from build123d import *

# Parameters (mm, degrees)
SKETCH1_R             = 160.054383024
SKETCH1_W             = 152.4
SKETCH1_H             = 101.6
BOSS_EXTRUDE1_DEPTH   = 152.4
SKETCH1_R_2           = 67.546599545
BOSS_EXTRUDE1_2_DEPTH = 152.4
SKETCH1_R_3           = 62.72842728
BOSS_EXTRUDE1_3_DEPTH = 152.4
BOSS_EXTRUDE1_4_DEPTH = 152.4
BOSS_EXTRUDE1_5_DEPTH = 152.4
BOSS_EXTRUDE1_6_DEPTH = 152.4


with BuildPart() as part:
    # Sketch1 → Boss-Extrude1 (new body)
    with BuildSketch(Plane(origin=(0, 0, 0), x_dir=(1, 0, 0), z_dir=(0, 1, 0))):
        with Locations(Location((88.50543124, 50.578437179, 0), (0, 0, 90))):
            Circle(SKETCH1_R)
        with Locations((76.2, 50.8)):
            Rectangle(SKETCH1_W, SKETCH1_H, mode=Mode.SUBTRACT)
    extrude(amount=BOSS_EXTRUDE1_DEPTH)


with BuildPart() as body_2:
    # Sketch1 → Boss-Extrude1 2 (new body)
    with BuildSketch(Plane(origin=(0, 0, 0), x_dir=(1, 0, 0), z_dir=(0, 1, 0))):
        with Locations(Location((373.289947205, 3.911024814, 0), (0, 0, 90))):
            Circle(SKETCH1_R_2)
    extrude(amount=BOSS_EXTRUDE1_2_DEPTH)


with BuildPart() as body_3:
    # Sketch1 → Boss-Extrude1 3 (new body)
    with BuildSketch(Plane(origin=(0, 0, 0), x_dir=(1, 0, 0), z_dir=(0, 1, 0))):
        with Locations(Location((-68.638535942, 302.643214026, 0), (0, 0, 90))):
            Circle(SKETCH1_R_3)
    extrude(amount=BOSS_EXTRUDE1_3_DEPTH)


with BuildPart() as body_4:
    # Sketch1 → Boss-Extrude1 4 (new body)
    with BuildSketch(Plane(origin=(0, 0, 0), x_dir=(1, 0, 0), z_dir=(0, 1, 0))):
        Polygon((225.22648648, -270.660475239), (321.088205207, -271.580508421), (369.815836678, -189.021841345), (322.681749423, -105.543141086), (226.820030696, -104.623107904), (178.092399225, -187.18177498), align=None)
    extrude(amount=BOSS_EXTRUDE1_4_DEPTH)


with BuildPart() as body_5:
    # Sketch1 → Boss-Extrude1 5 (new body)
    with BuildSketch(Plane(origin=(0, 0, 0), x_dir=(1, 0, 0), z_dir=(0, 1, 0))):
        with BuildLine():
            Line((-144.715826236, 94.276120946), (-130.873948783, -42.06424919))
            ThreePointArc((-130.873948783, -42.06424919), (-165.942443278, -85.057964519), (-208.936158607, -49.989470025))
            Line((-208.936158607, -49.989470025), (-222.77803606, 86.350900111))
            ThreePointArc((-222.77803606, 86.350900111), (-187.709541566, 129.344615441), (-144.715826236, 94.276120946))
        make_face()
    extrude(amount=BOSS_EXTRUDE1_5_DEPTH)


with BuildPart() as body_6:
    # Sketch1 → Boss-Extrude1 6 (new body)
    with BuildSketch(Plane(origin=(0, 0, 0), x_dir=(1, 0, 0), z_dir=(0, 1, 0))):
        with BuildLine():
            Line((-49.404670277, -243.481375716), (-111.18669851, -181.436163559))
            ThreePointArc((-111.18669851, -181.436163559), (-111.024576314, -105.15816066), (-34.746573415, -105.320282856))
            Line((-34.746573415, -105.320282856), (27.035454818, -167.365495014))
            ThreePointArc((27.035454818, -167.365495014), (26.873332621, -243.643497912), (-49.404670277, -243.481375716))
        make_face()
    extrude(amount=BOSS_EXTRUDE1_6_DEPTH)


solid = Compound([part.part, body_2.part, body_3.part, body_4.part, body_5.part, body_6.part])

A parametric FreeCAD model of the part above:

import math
import FreeCAD as App
import Part
import Sketcher
from FreeCAD import Vector
Q = App.Units.Quantity

doc = App.newDocument("Part")
params = doc.addObject("Spreadsheet::Sheet", "Params")
for row, (alias, value) in enumerate([
    ("sketch1_width", "6 in"),
    ("sketch1_height", "4 in"),
    ("pad1_length", "6 in"),
    ("pad2_length", "6 in"),
    ("pad3_length", "6 in"),
    ("pad4_length", "6 in"),
    ("pad5_length", "6 in"),
    ("pad6_length", "6 in"),
], start=1):
    params.set(f"A{row}", alias)
    params.set(f"B{row}", "=" + value)
    params.setAlias(f"B{row}", alias)

body = doc.addObject("PartDesign::Body", "Body")

sketch1 = body.newObject("Sketcher::SketchObject", "Sketch")
sketch1.AttachmentSupport = (doc.getObject("XZ_Plane"), [""])
sketch1.MapMode = "FlatFace"
sketch1.addGeometry([
    Part.Circle(Vector(89, -51, 0), Vector(0, 0, 1), 160),
    Part.LineSegment(Vector(152, 0, 0), Vector(0, 0, 0)),
    Part.LineSegment(Vector(0, 0, 0), Vector(0, -102, 0)),
    Part.LineSegment(Vector(0, -102, 0), Vector(152, -102, 0)),
    Part.LineSegment(Vector(152, -102, 0), Vector(152, 0, 0)),
], False)
sketch1.addConstraint([
    Sketcher.Constraint("Coincident", 1, 2, 2, 1),
    Sketcher.Constraint("Coincident", 2, 2, 3, 1),
    Sketcher.Constraint("Coincident", 3, 2, 4, 1),
    Sketcher.Constraint("Coincident", 4, 2, 1, 1),
    Sketcher.Constraint("Horizontal", 1),
    Sketcher.Constraint("Vertical", 2),
    Sketcher.Constraint("Horizontal", 3),
    Sketcher.Constraint("Vertical", 4),
    Sketcher.Constraint("Coincident", 1, 2, -1, 1),
    Sketcher.Constraint("DistanceX", 1, 2, 1, 1, Q("6 in")),
    Sketcher.Constraint("DistanceY", 2, 2, 2, 1, Q("4 in")),
    Sketcher.Constraint("Diameter", 0, 320.108766),
    Sketcher.Constraint("DistanceX", -1, 1, 0, 3, 88.505431),
    Sketcher.Constraint("DistanceY", 0, 3, -1, 1, 50.578437),
])
sketch1.setExpression("Constraints[9]", "Params.sketch1_width")
sketch1.setExpression("Constraints[10]", "Params.sketch1_height")
pad1 = body.newObject("PartDesign::Pad", "Pad")
pad1.Profile = sketch1
pad1.setExpression("Length", "Params.pad1_length")
pad1.Reversed = True
body2 = doc.addObject("PartDesign::Body", "Body001")

sketch2 = body2.newObject("Sketcher::SketchObject", "Sketch001")
sketch2.AttachmentSupport = (doc.getObject("XZ_Plane001"), [""])
sketch2.MapMode = "FlatFace"
sketch2.addGeometry(Part.Circle(Vector(373, -4, 0), Vector(0, 0, 1), 68), False)
sketch2.addConstraint([
    Sketcher.Constraint("Diameter", 0, 135.093199),
    Sketcher.Constraint("DistanceX", -1, 1, 0, 3, 373.289947),
    Sketcher.Constraint("DistanceY", 0, 3, -1, 1, 3.911025),
])
pad2 = body2.newObject("PartDesign::Pad", "Pad001")
pad2.Profile = sketch2
pad2.setExpression("Length", "Params.pad2_length")
pad2.Reversed = True
body3 = doc.addObject("PartDesign::Body", "Body002")

sketch3 = body3.newObject("Sketcher::SketchObject", "Sketch002")
sketch3.AttachmentSupport = (doc.getObject("XZ_Plane002"), [""])
sketch3.MapMode = "FlatFace"
sketch3.addGeometry(Part.Circle(Vector(-69, -303, 0), Vector(0, 0, 1), 63), False)
sketch3.addConstraint([
    Sketcher.Constraint("Diameter", 0, 125.456855),
    Sketcher.Constraint("DistanceX", 0, 3, -1, 1, 68.638536),
    Sketcher.Constraint("DistanceY", 0, 3, -1, 1, 302.643214),
])
pad3 = body3.newObject("PartDesign::Pad", "Pad002")
pad3.Profile = sketch3
pad3.setExpression("Length", "Params.pad3_length")
pad3.Reversed = True
body4 = doc.addObject("PartDesign::Body", "Body003")

sketch4 = body4.newObject("Sketcher::SketchObject", "Sketch003")
sketch4.AttachmentSupport = (doc.getObject("XZ_Plane003"), [""])
sketch4.MapMode = "FlatFace"
sketch4.addGeometry([
    Part.LineSegment(Vector(225, 271, 0), Vector(321, 272, 0)),
    Part.LineSegment(Vector(321, 272, 0), Vector(370, 189, 0)),
    Part.LineSegment(Vector(370, 189, 0), Vector(323, 106, 0)),
    Part.LineSegment(Vector(323, 106, 0), Vector(227, 105, 0)),
    Part.LineSegment(Vector(227, 105, 0), Vector(178, 187, 0)),
    Part.LineSegment(Vector(178, 187, 0), Vector(225, 271, 0)),
], False)
sketch4.addConstraint([
    Sketcher.Constraint("Coincident", 0, 2, 1, 1),
    Sketcher.Constraint("Coincident", 1, 2, 2, 1),
    Sketcher.Constraint("Coincident", 2, 2, 3, 1),
    Sketcher.Constraint("Coincident", 3, 2, 4, 1),
    Sketcher.Constraint("Coincident", 4, 2, 5, 1),
    Sketcher.Constraint("Coincident", 5, 2, 0, 1),
    Sketcher.Constraint("Parallel", 0, 3),
    Sketcher.Constraint("Parallel", 1, 4),
    Sketcher.Constraint("Parallel", 2, 5),
    Sketcher.Constraint("Equal", 0, 1),
    Sketcher.Constraint("Equal", 1, 2),
    Sketcher.Constraint("Equal", 2, 3),
    Sketcher.Constraint("DistanceX", -1, 1, 4, 2, 178.092399),
    Sketcher.Constraint("DistanceY", 2, 2, 1, 2, 83.4787),
    Sketcher.Constraint("DistanceY", 3, 2, 0, 2, 166.957401),
    Sketcher.Constraint("DistanceY", -1, 1, 0, 2, 271.580508),
    Sketcher.Constraint("DistanceY", -1, 1, 1, 2, 189.021841),
    Sketcher.Constraint("DistanceX", -1, 1, 2, 2, 322.681749),
])
pad4 = body4.newObject("PartDesign::Pad", "Pad003")
pad4.Profile = sketch4
pad4.setExpression("Length", "Params.pad4_length")
pad4.Reversed = True
body5 = doc.addObject("PartDesign::Body", "Body004")

sketch5 = body5.newObject("Sketcher::SketchObject", "Sketch004")
sketch5.AttachmentSupport = (doc.getObject("XZ_Plane004"), [""])
sketch5.MapMode = "FlatFace"
sketch5.addGeometry([
    Part.LineSegment(Vector(-131, 42, 0), Vector(-145, -94, 0)),
    Part.ArcOfCircle(Part.Circle(Vector(-184, -90, 0), Vector(0, 0, 1), 39), math.radians(174), math.radians(354)),
    Part.LineSegment(Vector(-223, -86, 0), Vector(-209, 50, 0)),
    Part.ArcOfCircle(Part.Circle(Vector(-170, 46, 0), Vector(0, 0, 1), 39), math.radians(-6), math.radians(174)),
], False)
sketch5.addConstraint([
    Sketcher.Constraint("Tangent", 0, 2, 1, 2),
    Sketcher.Constraint("Tangent", 1, 1, 2, 1),
    Sketcher.Constraint("Tangent", 2, 2, 3, 2),
    Sketcher.Constraint("Tangent", 3, 1, 0, 1),
    Sketcher.Constraint("Equal", 1, 3),
    Sketcher.Constraint("Radius", 1, 39.23174),
    Sketcher.Constraint("DistanceY", 1, 1, -1, 1, 86.3509),
    Sketcher.Constraint("DistanceX", 1, 3, -1, 1, 183.746931),
    Sketcher.Constraint("DistanceY", 1, 3, -1, 1, 90.313511),
    Sketcher.Constraint("DistanceY", -1, 1, 3, 3, 46.02686),
])
pad5 = body5.newObject("PartDesign::Pad", "Pad004")
pad5.Profile = sketch5
pad5.setExpression("Length", "Params.pad5_length")
pad5.Reversed = True
body6 = doc.addObject("PartDesign::Body", "Body005")

sketch6 = body6.newObject("Sketcher::SketchObject", "Sketch005")
sketch6.AttachmentSupport = (doc.getObject("XZ_Plane005"), [""])
sketch6.MapMode = "FlatFace"
sketch6.addGeometry([
    Part.LineSegment(Vector(-111, 181, 0), Vector(-49, 243, 0)),
    Part.ArcOfCircle(Part.Circle(Vector(-11, 205, 0), Vector(0, 0, 1), 54), math.radians(-45), math.radians(135)),
    Part.LineSegment(Vector(27, 167, 0), Vector(-35, 105, 0)),
    Part.ArcOfCircle(Part.Circle(Vector(-73, 143, 0), Vector(0, 0, 1), 54), math.radians(135), math.radians(315)),
], False)
sketch6.addConstraint([
    Sketcher.Constraint("Tangent", 0, 2, 1, 2),
    Sketcher.Constraint("Tangent", 1, 1, 2, 1),
    Sketcher.Constraint("Tangent", 2, 2, 3, 2),
    Sketcher.Constraint("Tangent", 3, 1, 0, 1),
    Sketcher.Constraint("Equal", 1, 3),
    Sketcher.Constraint("Radius", 1, 53.936815),
    Sketcher.Constraint("DistanceX", 3, 1, -1, 1, 111.186699),
    Sketcher.Constraint("Distance", 0, 87.559279),
    Sketcher.Constraint("DistanceX", 0, 2, -1, 1, 49.40467),
    Sketcher.Constraint("DistanceY", -1, 1, 1, 3, 205.423435),
])
pad6 = body6.newObject("PartDesign::Pad", "Pad005")
pad6.Profile = sketch6
pad6.setExpression("Length", "Params.pad6_length")
pad6.Reversed = True

doc.recompute()
